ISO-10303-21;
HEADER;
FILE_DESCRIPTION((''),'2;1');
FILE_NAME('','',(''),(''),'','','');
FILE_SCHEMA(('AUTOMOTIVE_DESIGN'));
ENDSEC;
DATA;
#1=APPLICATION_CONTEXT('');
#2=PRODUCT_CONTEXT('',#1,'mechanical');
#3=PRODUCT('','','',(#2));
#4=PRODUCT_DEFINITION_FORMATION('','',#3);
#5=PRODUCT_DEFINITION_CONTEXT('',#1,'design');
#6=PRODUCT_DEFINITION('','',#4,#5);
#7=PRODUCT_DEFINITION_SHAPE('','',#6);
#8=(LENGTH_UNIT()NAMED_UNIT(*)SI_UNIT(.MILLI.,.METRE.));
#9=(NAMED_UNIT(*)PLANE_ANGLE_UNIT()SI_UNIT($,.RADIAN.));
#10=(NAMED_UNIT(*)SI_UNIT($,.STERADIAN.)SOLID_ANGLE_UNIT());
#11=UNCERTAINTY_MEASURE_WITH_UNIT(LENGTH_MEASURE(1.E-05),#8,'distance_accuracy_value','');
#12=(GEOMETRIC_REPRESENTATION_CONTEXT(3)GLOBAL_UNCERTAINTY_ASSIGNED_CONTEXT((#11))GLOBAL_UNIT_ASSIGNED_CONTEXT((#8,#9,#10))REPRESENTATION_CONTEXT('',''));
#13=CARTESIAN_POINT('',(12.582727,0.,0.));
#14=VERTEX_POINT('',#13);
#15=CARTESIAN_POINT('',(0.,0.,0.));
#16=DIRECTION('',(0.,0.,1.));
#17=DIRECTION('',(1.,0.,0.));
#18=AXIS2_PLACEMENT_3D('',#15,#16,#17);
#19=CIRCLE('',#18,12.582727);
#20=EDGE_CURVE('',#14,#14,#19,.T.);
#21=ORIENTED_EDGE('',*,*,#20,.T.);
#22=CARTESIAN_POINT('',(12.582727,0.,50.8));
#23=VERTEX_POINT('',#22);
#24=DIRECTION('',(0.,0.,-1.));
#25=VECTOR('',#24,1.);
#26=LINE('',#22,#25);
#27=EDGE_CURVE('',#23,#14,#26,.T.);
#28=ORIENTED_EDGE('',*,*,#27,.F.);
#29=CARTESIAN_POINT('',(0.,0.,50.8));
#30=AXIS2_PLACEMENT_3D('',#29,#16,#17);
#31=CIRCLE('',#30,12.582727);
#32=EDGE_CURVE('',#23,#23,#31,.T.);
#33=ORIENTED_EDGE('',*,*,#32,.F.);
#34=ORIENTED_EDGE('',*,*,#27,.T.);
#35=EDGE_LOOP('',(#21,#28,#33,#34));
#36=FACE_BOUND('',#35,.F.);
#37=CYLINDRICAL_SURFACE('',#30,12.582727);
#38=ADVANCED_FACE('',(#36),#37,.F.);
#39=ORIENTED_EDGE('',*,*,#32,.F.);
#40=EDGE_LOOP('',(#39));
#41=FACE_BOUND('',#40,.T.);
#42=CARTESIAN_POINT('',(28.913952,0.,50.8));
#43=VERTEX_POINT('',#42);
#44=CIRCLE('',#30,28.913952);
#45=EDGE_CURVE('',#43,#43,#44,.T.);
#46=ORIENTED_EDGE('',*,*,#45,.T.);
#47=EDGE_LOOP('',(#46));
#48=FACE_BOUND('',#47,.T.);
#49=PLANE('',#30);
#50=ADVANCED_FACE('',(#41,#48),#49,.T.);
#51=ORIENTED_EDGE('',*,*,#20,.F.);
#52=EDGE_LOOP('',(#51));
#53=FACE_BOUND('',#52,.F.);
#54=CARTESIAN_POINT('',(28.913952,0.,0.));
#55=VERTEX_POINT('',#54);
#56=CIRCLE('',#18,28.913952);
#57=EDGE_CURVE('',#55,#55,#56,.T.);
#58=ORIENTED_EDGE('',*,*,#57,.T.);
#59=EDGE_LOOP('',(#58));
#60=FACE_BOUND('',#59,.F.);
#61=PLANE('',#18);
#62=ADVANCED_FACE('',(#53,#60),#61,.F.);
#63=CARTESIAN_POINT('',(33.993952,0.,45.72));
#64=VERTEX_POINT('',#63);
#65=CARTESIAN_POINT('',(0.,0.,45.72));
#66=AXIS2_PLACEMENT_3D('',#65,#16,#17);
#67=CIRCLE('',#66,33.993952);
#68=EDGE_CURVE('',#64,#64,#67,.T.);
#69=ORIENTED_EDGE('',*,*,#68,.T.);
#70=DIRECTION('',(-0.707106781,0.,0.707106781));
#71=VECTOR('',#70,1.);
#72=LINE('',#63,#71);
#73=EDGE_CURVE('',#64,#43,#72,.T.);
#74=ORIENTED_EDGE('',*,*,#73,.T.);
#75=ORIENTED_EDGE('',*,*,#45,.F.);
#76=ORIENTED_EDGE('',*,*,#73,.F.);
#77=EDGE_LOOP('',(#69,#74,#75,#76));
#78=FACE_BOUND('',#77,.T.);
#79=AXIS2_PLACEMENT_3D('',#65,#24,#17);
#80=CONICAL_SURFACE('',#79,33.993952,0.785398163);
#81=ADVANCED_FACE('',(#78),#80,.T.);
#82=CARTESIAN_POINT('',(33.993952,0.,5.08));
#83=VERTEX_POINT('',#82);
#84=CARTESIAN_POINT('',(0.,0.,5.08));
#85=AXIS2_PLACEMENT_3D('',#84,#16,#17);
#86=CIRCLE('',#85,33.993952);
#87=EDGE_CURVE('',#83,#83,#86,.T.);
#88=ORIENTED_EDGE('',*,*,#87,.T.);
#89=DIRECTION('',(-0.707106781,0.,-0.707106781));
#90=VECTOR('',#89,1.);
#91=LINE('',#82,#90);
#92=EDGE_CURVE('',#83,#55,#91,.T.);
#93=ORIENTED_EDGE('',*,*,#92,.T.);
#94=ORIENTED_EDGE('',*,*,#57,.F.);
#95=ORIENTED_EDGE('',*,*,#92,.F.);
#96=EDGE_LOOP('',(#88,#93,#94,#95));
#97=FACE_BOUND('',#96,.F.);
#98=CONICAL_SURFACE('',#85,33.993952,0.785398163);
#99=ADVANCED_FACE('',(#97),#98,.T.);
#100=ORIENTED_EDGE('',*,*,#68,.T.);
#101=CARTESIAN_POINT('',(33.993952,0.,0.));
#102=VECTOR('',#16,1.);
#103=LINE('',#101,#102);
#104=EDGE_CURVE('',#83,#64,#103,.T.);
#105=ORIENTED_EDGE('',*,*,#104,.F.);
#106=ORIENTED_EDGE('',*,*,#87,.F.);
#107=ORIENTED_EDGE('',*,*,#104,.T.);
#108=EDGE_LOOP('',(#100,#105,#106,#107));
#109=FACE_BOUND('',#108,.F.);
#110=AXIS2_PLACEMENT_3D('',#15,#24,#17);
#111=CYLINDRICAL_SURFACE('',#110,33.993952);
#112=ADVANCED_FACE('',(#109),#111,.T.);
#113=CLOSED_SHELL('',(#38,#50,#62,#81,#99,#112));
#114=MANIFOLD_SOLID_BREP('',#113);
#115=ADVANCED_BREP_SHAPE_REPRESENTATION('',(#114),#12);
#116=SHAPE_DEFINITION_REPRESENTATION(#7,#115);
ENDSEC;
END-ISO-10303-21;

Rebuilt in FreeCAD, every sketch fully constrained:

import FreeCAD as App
import Part
import Sketcher
from FreeCAD import Vector
Q = App.Units.Quantity


def edges_at(feature, points):
    """Names of the edges that pass closest to the given points."""
    edges = feature.Shape.Edges
    near = lambda p: min(range(len(edges)), key=lambda i: edges[i].distToShape(Part.Vertex(*p))[0])
    return sorted({f"Edge{near(p) + 1}" for p in points})

doc = App.newDocument("Part")
body = doc.addObject("PartDesign::Body", "Body")

# Sketch on XY plane
sketch1 = body.newObject("Sketcher::SketchObject", "Sketch")
sketch1.AttachmentSupport = (doc.getObject("XY_Plane"), [""])
sketch1.MapMode = "FlatFace"
sketch1.addGeometry(Part.Circle(Vector(0, 0, 0), Vector(0, 0, 1), 34), False)
sketch1.addConstraint(Sketcher.Constraint("Coincident", 0, 3, -1, 1))
sketch1.addConstraint(Sketcher.Constraint("Diameter", 0, 67.987904))
pad1 = body.newObject("PartDesign::Pad", "Pad")
pad1.Profile = sketch1
pad1.Length = Q("2 in")
doc.recompute()

chamfer = body.newObject("PartDesign::Chamfer", "Chamfer")
chamfer.Base = (pad1, edges_at(pad1, [(-33.994, 0, 50.8), (-33.994, 0, 0)]))
chamfer.Size = Q("0.2 in")

# Sketch on XY plane
sketch2 = body.newObject("Sketcher::SketchObject", "Sketch001")
sketch2.AttachmentSupport = (doc.getObject("XY_Plane"), [""])
sketch2.MapMode = "FlatFace"
sketch2.AttachmentOffset = App.Placement(Vector(0, 0, 2 * 25.4), App.Rotation())
sketch2.addGeometry(Part.Circle(Vector(0, 0, 0), Vector(0, 0, 1), 13), False)
sketch2.addConstraint(Sketcher.Constraint("Coincident", 0, 3, -1, 1))
sketch2.addConstraint(Sketcher.Constraint("Diameter", 0, 25.165454))
pocket1 = body.newObject("PartDesign::Pocket", "Pocket")
pocket1.Profile = sketch2
pocket1.Length = Q("3 in")

doc.recompute()
